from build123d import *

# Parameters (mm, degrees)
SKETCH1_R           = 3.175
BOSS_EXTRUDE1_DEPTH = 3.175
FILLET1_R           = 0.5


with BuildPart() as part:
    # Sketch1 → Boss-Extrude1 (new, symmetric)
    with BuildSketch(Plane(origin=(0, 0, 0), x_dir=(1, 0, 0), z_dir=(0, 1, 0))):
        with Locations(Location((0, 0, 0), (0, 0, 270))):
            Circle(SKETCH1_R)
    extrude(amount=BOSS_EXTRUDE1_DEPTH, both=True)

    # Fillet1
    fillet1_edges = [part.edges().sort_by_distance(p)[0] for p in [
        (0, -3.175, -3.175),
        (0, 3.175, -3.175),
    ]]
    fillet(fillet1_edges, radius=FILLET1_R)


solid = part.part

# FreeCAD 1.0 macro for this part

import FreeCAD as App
import Part
import Sketcher
from FreeCAD import Vector
Q = App.Units.Quantity


def edges_at(feature, points):
    """Names of the edges that pass closest to the given points."""
    edges = feature.Shape.Edges
    near = lambda p: min(range(len(edges)), key=lambda i: edges[i].distToShape(Part.Vertex(*p))[0])
    return sorted({f"Edge{near(p) + 1}" for p in points})

doc = App.newDocument("Part")
body = doc.addObject("PartDesign::Body", "Body")

sketch1 = doc.addObject("Sketcher::SketchObject", "Sketch")
body.addObject(sketch1)
sketch1.AttachmentSupport = (doc.XZ_Plane, [""])
sketch1.MapMode = "FlatFace"
sketch1.addGeometry(Part.Circle(Vector(0, 0, 0), Vector(0, 0, 1), 3.2), False)
sketch1.addConstraint([
    Sketcher.Constraint("Coincident", 0, 3, -1, 1),
    Sketcher.Constraint("Diameter", 0, Q("0.25 in")),
])
pad1 = doc.addObject("PartDesign::Pad", "Pad")
body.addObject(pad1)
pad1.Profile = sketch1
pad1.Length = Q("0.25 in")
pad1.Midplane = True
doc.recompute()

fillet = doc.addObject("PartDesign::Fillet", "Fillet")
body.addObject(fillet)
fillet.Base = (pad1, edges_at(pad1, [(0, -3.175, -3.175), (0, 3.175, -3.175)]))
fillet.Radius = 0.5

doc.recompute()
